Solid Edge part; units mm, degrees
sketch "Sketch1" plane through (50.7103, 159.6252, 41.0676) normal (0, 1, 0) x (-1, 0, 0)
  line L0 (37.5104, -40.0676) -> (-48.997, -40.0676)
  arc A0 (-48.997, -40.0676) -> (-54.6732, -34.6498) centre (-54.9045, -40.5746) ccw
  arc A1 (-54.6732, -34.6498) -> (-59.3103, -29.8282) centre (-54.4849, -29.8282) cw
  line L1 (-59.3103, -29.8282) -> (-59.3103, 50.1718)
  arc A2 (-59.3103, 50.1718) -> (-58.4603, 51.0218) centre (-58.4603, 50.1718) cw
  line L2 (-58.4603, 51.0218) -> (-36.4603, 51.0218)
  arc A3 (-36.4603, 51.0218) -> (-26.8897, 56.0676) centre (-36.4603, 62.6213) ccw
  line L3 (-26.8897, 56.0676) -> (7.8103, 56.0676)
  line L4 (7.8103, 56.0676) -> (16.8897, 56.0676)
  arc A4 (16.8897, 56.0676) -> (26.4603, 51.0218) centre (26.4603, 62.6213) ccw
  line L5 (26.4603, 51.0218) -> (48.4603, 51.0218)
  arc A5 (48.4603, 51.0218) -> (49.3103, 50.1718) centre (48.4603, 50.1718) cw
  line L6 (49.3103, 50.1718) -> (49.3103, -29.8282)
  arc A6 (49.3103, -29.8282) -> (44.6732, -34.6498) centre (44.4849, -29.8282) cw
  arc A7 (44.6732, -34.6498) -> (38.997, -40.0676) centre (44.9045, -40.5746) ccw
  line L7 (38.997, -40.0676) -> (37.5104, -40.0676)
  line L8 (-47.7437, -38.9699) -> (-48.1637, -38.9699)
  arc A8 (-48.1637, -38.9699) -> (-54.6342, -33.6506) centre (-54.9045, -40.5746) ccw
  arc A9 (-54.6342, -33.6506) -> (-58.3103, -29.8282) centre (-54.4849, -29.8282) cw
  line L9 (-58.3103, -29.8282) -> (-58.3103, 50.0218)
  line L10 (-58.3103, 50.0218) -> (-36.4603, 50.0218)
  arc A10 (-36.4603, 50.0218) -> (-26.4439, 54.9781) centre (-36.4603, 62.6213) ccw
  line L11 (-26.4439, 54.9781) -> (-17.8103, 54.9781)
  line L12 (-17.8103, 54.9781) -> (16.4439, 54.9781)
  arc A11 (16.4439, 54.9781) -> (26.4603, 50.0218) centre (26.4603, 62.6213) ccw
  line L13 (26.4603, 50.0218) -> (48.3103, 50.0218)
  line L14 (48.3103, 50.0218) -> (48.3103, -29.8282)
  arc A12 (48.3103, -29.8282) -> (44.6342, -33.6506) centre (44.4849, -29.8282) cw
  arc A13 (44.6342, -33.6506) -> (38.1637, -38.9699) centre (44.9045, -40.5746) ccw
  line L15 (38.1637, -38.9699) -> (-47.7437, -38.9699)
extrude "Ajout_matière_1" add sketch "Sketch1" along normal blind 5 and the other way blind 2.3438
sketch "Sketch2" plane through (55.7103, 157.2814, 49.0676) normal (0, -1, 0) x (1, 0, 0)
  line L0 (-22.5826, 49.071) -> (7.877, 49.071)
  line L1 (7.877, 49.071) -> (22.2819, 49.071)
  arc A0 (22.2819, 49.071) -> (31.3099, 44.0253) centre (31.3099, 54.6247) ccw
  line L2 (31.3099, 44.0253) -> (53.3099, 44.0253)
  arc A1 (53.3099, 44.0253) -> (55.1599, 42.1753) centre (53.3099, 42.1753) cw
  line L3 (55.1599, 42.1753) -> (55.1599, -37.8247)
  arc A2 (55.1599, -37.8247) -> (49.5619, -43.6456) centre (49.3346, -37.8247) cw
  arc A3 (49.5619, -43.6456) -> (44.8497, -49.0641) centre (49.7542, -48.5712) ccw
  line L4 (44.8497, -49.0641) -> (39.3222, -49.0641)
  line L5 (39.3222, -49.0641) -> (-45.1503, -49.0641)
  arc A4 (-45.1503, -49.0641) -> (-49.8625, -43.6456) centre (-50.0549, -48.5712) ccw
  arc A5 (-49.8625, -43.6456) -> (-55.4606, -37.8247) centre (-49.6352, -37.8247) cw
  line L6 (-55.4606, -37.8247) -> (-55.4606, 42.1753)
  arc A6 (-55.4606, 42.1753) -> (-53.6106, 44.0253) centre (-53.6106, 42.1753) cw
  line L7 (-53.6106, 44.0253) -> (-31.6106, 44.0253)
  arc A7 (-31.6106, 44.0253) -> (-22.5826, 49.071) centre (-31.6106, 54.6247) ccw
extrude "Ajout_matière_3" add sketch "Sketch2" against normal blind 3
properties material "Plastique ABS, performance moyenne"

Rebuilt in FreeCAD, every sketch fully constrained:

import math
import FreeCAD as App
import Part
import Sketcher
from FreeCAD import Vector

doc = App.newDocument("Part")
body = doc.addObject("PartDesign::Body", "Body")

# Sketch on XZ plane
sketch1 = body.newObject("Sketcher::SketchObject", "Sketch")
sketch1.AttachmentSupport = (doc.getObject("XZ_Plane"), [""])
sketch1.MapMode = "FlatFace"
sketch1.AttachmentOffset = App.Placement(Vector(0, 0, -159.6252), App.Rotation())
sketch1.addGeometry([
    Part.LineSegment(Vector(99.7, 1, 0), Vector(11.7, 1, 0)),  # 0
    Part.ArcOfCircle(Part.Circle(Vector(5.8, 0.5, 0), Vector(0, 0, 1), 5.9), math.radians(5), math.radians(88)),  # 1
    Part.ArcOfCircle(Part.Circle(Vector(6.2, 11.2, 0), Vector(0, 0, 1), 4.8), math.radians(180), math.radians(268)),  # 2
    Part.LineSegment(Vector(1.4, 11.2, 0), Vector(1.4, 91.2, 0)),  # 3
    Part.ArcOfCircle(Part.Circle(Vector(2.2, 91.2, 0), Vector(0, 0, 1), 0.9), math.radians(90), math.radians(180)),  # 4
    Part.LineSegment(Vector(2.2, 92.1, 0), Vector(24.2, 92.1, 0)),  # 5
    Part.ArcOfCircle(Part.Circle(Vector(24.2, 103.7, 0), Vector(0, 0, 1), 11.6), math.radians(-90), math.radians(-34)),  # 6
    Part.LineSegment(Vector(33.8, 97.1, 0), Vector(77.6, 97.1, 0)),  # 7
    Part.ArcOfCircle(Part.Circle(Vector(87.2, 103.7, 0), Vector(0, 0, 1), 11.6), math.radians(-146), math.radians(-90)),  # 8
    Part.LineSegment(Vector(87.2, 92.1, 0), Vector(109.2, 92.1, 0)),  # 9
    Part.ArcOfCircle(Part.Circle(Vector(109.2, 91.2, 0), Vector(0, 0, 1), 0.9), math.radians(0), math.radians(90)),  # 10
    Part.LineSegment(Vector(110, 91.2, 0), Vector(110, 11.2, 0)),  # 11
    Part.ArcOfCircle(Part.Circle(Vector(105.2, 11.2, 0), Vector(0, 0, 1), 4.8), math.radians(-88), math.radians(0)),  # 12
    Part.ArcOfCircle(Part.Circle(Vector(105.6, 0.5, 0), Vector(0, 0, 1), 5.9), math.radians(92), math.radians(175)),  # 13
    Part.LineSegment(Vector(12.5, 2.1, 0), Vector(98.9, 2.1, 0)),  # 14
    Part.ArcOfCircle(Part.Circle(Vector(105.6, 0.5, 0), Vector(0, 0, 1), 6.9), math.radians(92), math.radians(167)),  # 15
    Part.ArcOfCircle(Part.Circle(Vector(105.2, 11.2, 0), Vector(0, 0, 1), 3.8), math.radians(-88), math.radians(0)),  # 16
    Part.LineSegment(Vector(109, 11.2, 0), Vector(109, 91.1, 0)),  # 17
    Part.LineSegment(Vector(109, 91.1, 0), Vector(87.2, 91.1, 0)),  # 18
    Part.ArcOfCircle(Part.Circle(Vector(87.2, 103.7, 0), Vector(0, 0, 1), 12.6), math.radians(-143), math.radians(-90)),  # 19
    Part.LineSegment(Vector(77.2, 96, 0), Vector(34.3, 96, 0)),  # 20
    Part.ArcOfCircle(Part.Circle(Vector(24.2, 103.7, 0), Vector(0, 0, 1), 12.6), math.radians(-90), math.radians(-37)),  # 21
    Part.LineSegment(Vector(24.2, 91.1, 0), Vector(2.4, 91.1, 0)),  # 22
    Part.LineSegment(Vector(2.4, 91.1, 0), Vector(2.4, 11.2, 0)),  # 23
    Part.ArcOfCircle(Part.Circle(Vector(6.2, 11.2, 0), Vector(0, 0, 1), 3.8), math.radians(180), math.radians(268)),  # 24
    Part.ArcOfCircle(Part.Circle(Vector(5.8, 0.5, 0), Vector(0, 0, 1), 6.9), math.radians(13), math.radians(88)),  # 25
], False)
sketch1.addConstraint([
    Sketcher.Constraint("Coincident", 0, 2, 1, 1),
    Sketcher.Constraint("Tangent", 1, 2, 2, 2),
    Sketcher.Constraint("Tangent", 2, 1, 3, 1),
    Sketcher.Constraint("Tangent", 3, 2, 4, 2),
    Sketcher.Constraint("Tangent", 4, 1, 5, 1),
    Sketcher.Constraint("Tangent", 5, 2, 6, 1),
    Sketcher.Constraint("Coincident", 6, 2, 7, 1),
    Sketcher.Constraint("Coincident", 7, 2, 8, 1),
    Sketcher.Constraint("Tangent", 8, 2, 9, 1),
    Sketcher.Constraint("Tangent", 9, 2, 10, 2),
    Sketcher.Constraint("Tangent", 10, 1, 11, 1),
    Sketcher.Constraint("Tangent", 11, 2, 12, 2),
    Sketcher.Constraint("Tangent", 12, 1, 13, 1),
    Sketcher.Constraint("Coincident", 13, 2, 0, 1),
    Sketcher.Constraint("Coincident", 14, 2, 15, 2),
    Sketcher.Constraint("Tangent", 15, 1, 16, 1),
    Sketcher.Constraint("Tangent", 16, 2, 17, 1),
    Sketcher.Constraint("Coincident", 17, 2, 18, 1),
    Sketcher.Constraint("Tangent", 18, 2, 19, 2),
    Sketcher.Constraint("Coincident", 19, 1, 20, 1),
    Sketcher.Constraint("Coincident", 20, 2, 21, 2),
    Sketcher.Constraint("Tangent", 21, 1, 22, 1),
    Sketcher.Constraint("Coincident", 22, 2, 23, 1),
    Sketcher.Constraint("Tangent", 23, 2, 24, 1),
    Sketcher.Constraint("Tangent", 24, 2, 25, 2),
    Sketcher.Constraint("Coincident", 25, 1, 14, 1),
    Sketcher.Constraint("Horizontal", 0),
    Sketcher.Constraint("Vertical", 3),
    Sketcher.Constraint("Horizontal", 5),
    Sketcher.Constraint("Horizontal", 7),
    Sketcher.Constraint("Horizontal", 9),
    Sketcher.Constraint("Vertical", 11),
    Sketcher.Constraint("Horizontal", 14),
    Sketcher.Constraint("Vertical", 17),
    Sketcher.Constraint("Horizontal", 18),
    Sketcher.Constraint("Horizontal", 20),
    Sketcher.Constraint("Horizontal", 22),
    Sketcher.Constraint("Vertical", 23),
    Sketcher.Constraint("Coincident", 15, 3, 13, 3),
    Sketcher.Constraint("Coincident", 16, 3, 12, 3),
    Sketcher.Constraint("Coincident", 19, 3, 8, 3),
    Sketcher.Constraint("Coincident", 21, 3, 6, 3),
    Sketcher.Constraint("Coincident", 24, 3, 2, 3),
    Sketcher.Constraint("Coincident", 25, 3, 1, 3),
    Sketcher.Constraint("Equal", 6, 8),
    Sketcher.Constraint("Equal", 4, 10),
    Sketcher.Constraint("Equal", 2, 12),
    Sketcher.Constraint("Equal", 1, 13),
    Sketcher.Constraint("Equal", 19, 21),
    Sketcher.Constraint("Equal", 16, 24),
    Sketcher.Constraint("Horizontal", 6, 3, 8, 3),
    Sketcher.Constraint("Horizontal", 2, 3, 12, 3),
    Sketcher.Constraint("Horizontal", 1, 3, 13, 3),
    Sketcher.Constraint("Equal", 5, 9),
    Sketcher.Constraint("DistanceX", 5, 1, 5, 2, 22.0),
    Sketcher.Constraint("DistanceY", 3, 1, 3, 2, 80.0),
    Sketcher.Constraint("Radius", 4, 0.85),
    Sketcher.Constraint("DistanceY", -1, 1, 0, 2, 1.0),
    Sketcher.Constraint("DistanceX", 16, 2, 11, 2, 1.0),
    Sketcher.Constraint("DistanceY", 17, 2, 9, 2, 1.0),
    Sketcher.Constraint("DistanceX", -1, 1, 2, 1, 1.4),
    Sketcher.Constraint("DistanceX", -1, 1, 7, 2, 77.6),
    Sketcher.Constraint("Radius", 1, 5.9293),
    Sketcher.Constraint("Radius", 2, 4.8254),
    Sketcher.Constraint("Radius", 6, 11.5995),
    Sketcher.Constraint("DistanceX", 0, 2, 0, 1, 87.994),
    Sketcher.Constraint("DistanceY", 14, 2, 12, 1, 4.32),
    Sketcher.Constraint("DistanceX", 7, 1, 7, 2, 43.7794),
    Sketcher.Constraint("DistanceX", 14, 1, 14, 2, 86.3274),
    Sketcher.Constraint("DistanceX", 20, 2, 20, 1, 42.8878),
])
pad1 = body.newObject("PartDesign::Pad", "Pad")
pad1.Profile = sketch1
pad1.Type = "TwoLengths"
pad1.Length = 5
pad1.Length2 = 2.3438
pad1.Reversed = True

# Sketch on XZ plane
sketch2 = body.newObject("Sketcher::SketchObject", "Sketch001")
sketch2.AttachmentSupport = (doc.getObject("XZ_Plane"), [""])
sketch2.MapMode = "FlatFace"
sketch2.AttachmentOffset = App.Placement(Vector(0, 0, -157.2814), App.Rotation())
sketch2.addGeometry([
    Part.LineSegment(Vector(78, 98.1, 0), Vector(33.1, 98.1, 0)),  # 0
    Part.ArcOfCircle(Part.Circle(Vector(24.1, 103.7, 0), Vector(0, 0, 1), 10.6), math.radians(-90), math.radians(-32)),  # 1
    Part.LineSegment(Vector(24.1, 93.1, 0), Vector(2.1, 93.1, 0)),  # 2
    Part.ArcOfCircle(Part.Circle(Vector(2.1, 91.2, 0), Vector(0, 0, 1), 1.9), math.radians(90), math.radians(180)),  # 3
    Part.LineSegment(Vector(0.2, 91.2, 0), Vector(0.2, 11.2, 0)),  # 4
    Part.ArcOfCircle(Part.Circle(Vector(6.1, 11.2, 0), Vector(0, 0, 1), 5.8), math.radians(180), math.radians(268)),  # 5
    Part.ArcOfCircle(Part.Circle(Vector(5.7, 0.5, 0), Vector(0, 0, 1), 4.9), math.radians(-6), math.radians(88)),  # 6
    Part.LineSegment(Vector(10.6, 0, 0), Vector(100.6, 0, 0)),  # 7
    Part.ArcOfCircle(Part.Circle(Vector(105.5, 0.5, 0), Vector(0, 0, 1), 4.9), math.radians(92), math.radians(186)),  # 8
    Part.ArcOfCircle(Part.Circle(Vector(105, 11.2, 0), Vector(0, 0, 1), 5.8), math.radians(-88), math.radians(0)),  # 9
    Part.LineSegment(Vector(110.9, 11.2, 0), Vector(110.9, 91.2, 0)),  # 10
    Part.ArcOfCircle(Part.Circle(Vector(109, 91.2, 0), Vector(0, 0, 1), 1.9), math.radians(0), math.radians(90)),  # 11
    Part.LineSegment(Vector(109, 93.1, 0), Vector(87, 93.1, 0)),  # 12
    Part.ArcOfCircle(Part.Circle(Vector(87, 103.7, 0), Vector(0, 0, 1), 10.6), math.radians(-148), math.radians(-90)),  # 13
], False)
sketch2.addConstraint([
    Sketcher.Constraint("Coincident", 0, 2, 1, 2),
    Sketcher.Constraint("Tangent", 1, 1, 2, 1),
    Sketcher.Constraint("Tangent", 2, 2, 3, 1),
    Sketcher.Constraint("Tangent", 3, 2, 4, 1),
    Sketcher.Constraint("Tangent", 4, 2, 5, 1),
    Sketcher.Constraint("Tangent", 5, 2, 6, 2),
    Sketcher.Constraint("Coincident", 6, 1, 7, 1),
    Sketcher.Constraint("Coincident", 7, 2, 8, 2),
    Sketcher.Constraint("Tangent", 8, 1, 9, 1),
    Sketcher.Constraint("Tangent", 9, 2, 10, 1),
    Sketcher.Constraint("Tangent", 10, 2, 11, 1),
    Sketcher.Constraint("Tangent", 11, 2, 12, 1),
    Sketcher.Constraint("Tangent", 12, 2, 13, 2),
    Sketcher.Constraint("Coincident", 13, 1, 0, 1),
    Sketcher.Constraint("Horizontal", 0),
    Sketcher.Constraint("Horizontal", 2),
    Sketcher.Constraint("Vertical", 4),
    Sketcher.Constraint("Horizontal", 7),
    Sketcher.Constraint("Vertical", 10),
    Sketcher.Constraint("Horizontal", 12),
    Sketcher.Constraint("Equal", 6, 8),
    Sketcher.Constraint("Equal", 5, 9),
    Sketcher.Constraint("Equal", 3, 11),
    Sketcher.Constraint("Equal", 1, 13),
    Sketcher.Constraint("Horizontal", 6, 3, 8, 3),
    Sketcher.Constraint("Horizontal", 5, 3, 9, 3),
    Sketcher.Constraint("Horizontal", 3, 3, 11, 3),
    Sketcher.Constraint("Equal", 2, 12),
    Sketcher.Constraint("DistanceX", 2, 2, 2, 1, 22.0),
    Sketcher.Constraint("DistanceX", 7, 1, 7, 2, 90.0),
    Sketcher.Constraint("DistanceY", 4, 2, 4, 1, 80.0),
    Sketcher.Constraint("Radius", 3, 1.85),
    Sketcher.Constraint("Radius", 1, 10.5994),
    Sketcher.Constraint("Radius", 5, 5.8253),
    Sketcher.Constraint("Radius", 6, 4.9293),
    Sketcher.Constraint("DistanceX", -1, 1, 6, 1, 10.56),
    Sketcher.Constraint("DistanceX", 0, 2, 0, 1, 44.8645),
    Sketcher.Constraint("DistanceY", -1, 1, 3, 3, 91.243),
    Sketcher.Constraint("DistanceX", -1, 1, 5, 3, 6.075),
    Sketcher.Constraint("DistanceX", 6, 3, 8, 3, 99.809),
])
pad2 = body.newObject("PartDesign::Pad", "Pad001")
pad2.Profile = sketch2
pad2.Length = 3
pad2.Reversed = True

doc.recompute()
